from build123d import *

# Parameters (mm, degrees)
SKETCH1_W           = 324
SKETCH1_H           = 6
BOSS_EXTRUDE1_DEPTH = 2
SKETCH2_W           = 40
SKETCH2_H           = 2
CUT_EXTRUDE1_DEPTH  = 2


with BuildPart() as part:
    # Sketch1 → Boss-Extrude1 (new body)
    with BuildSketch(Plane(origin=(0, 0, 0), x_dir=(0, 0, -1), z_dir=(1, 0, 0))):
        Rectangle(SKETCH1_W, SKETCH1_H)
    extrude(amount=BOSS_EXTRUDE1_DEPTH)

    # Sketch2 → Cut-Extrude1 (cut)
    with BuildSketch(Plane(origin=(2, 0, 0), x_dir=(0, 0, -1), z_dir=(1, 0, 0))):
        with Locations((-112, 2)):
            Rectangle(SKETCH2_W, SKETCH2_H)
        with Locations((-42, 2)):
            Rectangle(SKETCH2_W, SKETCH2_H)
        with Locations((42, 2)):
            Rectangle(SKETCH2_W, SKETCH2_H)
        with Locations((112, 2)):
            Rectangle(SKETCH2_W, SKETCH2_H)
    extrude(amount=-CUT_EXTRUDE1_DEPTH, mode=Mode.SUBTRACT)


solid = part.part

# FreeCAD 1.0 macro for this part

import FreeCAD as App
import Part
import Sketcher
Q = App.Units.Quantity


def add_polygon(sketch, points):
    """Adds a closed chain of lines whose ends are joined by coincident constraints."""
    first, n = sketch.GeometryCount, len(points)
    for a, b in zip(points, points[1:] + points[:1]):
        sketch.addGeometry(Part.LineSegment(App.Vector(*a, 0), App.Vector(*b, 0)), False)
    for i in range(n):
        sketch.addConstraint(Sketcher.Constraint("Coincident", first + i, 2, first + (i + 1) % n, 1))

doc = App.newDocument("Part")
body = doc.addObject("PartDesign::Body", "Body")

# Sketch on YZ plane
sketch1 = body.newObject("Sketcher::SketchObject", "Sketch")
sketch1.AttachmentSupport = (doc.getObject("YZ_Plane"), [""])
sketch1.MapMode = "FlatFace"
add_polygon(sketch1, [(3, 162), (-3, 162), (-3, -162), (3, -162)])  # lines 0-3
sketch1.addConstraint([
    Sketcher.Constraint("Horizontal", 0),
    Sketcher.Constraint("Vertical", 1),
    Sketcher.Constraint("Horizontal", 2),
    Sketcher.Constraint("Vertical", 3),
    Sketcher.Constraint("Symmetric", 0, 2, 2, 2, -1, 1),
    Sketcher.Constraint("DistanceX", 0, 2, 0, 1, Q("6 mm")),
    Sketcher.Constraint("DistanceY", 1, 2, 1, 1, Q("324 mm")),
])
pad1 = body.newObject("PartDesign::Pad", "Pad")
pad1.Profile = sketch1
pad1.Length = 2

# Sketch on YZ plane
sketch2 = body.newObject("Sketcher::SketchObject", "Sketch001")
sketch2.AttachmentSupport = (doc.getObject("YZ_Plane"), [""])
sketch2.MapMode = "FlatFace"
sketch2.AttachmentOffset = App.Placement(App.Vector(0, 0, 2), App.Rotation())
add_polygon(sketch2, [(3, 132), (1, 132), (1, 92), (3, 92)])  # lines 0-3
add_polygon(sketch2, [(3, 62), (1, 62), (1, 22), (3, 22)])  # lines 4-7
add_polygon(sketch2, [(3, -22), (1, -22), (1, -62), (3, -62)])  # lines 8-11
add_polygon(sketch2, [(3, -92), (1, -92), (1, -132), (3, -132)])  # lines 12-15
sketch2.addConstraint([
    Sketcher.Constraint("Horizontal", 0),
    Sketcher.Constraint("Vertical", 1),
    Sketcher.Constraint("Horizontal", 2),
    Sketcher.Constraint("Vertical", 3),
    Sketcher.Constraint("Horizontal", 4),
    Sketcher.Constraint("Vertical", 5),
    Sketcher.Constraint("Horizontal", 6),
    Sketcher.Constraint("Vertical", 7),
    Sketcher.Constraint("Horizontal", 8),
    Sketcher.Constraint("Vertical", 9),
    Sketcher.Constraint("Horizontal", 10),
    Sketcher.Constraint("Vertical", 11),
    Sketcher.Constraint("Horizontal", 12),
    Sketcher.Constraint("Vertical", 13),
    Sketcher.Constraint("Horizontal", 14),
    Sketcher.Constraint("Vertical", 15),
    Sketcher.Constraint("Symmetric", 5, 2, 8, 2, -1),
    Sketcher.Constraint("Symmetric", 7, 2, 10, 2, -1),
    Sketcher.Constraint("Symmetric", 1, 2, 12, 2, -1),
    Sketcher.Constraint("Symmetric", 3, 2, 14, 2, -1),
    Sketcher.Constraint("Vertical", 1, 2, 4, 2),
    Sketcher.Constraint("Vertical", 3, 2, 6, 2),
    Sketcher.Constraint("Equal", 3, 5),
    Sketcher.Constraint("DistanceX", 0, 2, 0, 1, Q("2 mm")),
    Sketcher.Constraint("DistanceY", 1, 2, 1, 1, Q("40 mm")),
    Sketcher.Constraint("DistanceX", -1, 1, 0, 2, Q("1 mm")),
    Sketcher.Constraint("DistanceY", -1, 1, 0, 2, Q("132 mm")),
    Sketcher.Constraint("DistanceY", -1, 1, 4, 2, Q("62 mm")),
])
pocket1 = body.newObject("PartDesign::Pocket", "Pocket")
pocket1.Profile = sketch2
pocket1.Length = 2

doc.recompute()
